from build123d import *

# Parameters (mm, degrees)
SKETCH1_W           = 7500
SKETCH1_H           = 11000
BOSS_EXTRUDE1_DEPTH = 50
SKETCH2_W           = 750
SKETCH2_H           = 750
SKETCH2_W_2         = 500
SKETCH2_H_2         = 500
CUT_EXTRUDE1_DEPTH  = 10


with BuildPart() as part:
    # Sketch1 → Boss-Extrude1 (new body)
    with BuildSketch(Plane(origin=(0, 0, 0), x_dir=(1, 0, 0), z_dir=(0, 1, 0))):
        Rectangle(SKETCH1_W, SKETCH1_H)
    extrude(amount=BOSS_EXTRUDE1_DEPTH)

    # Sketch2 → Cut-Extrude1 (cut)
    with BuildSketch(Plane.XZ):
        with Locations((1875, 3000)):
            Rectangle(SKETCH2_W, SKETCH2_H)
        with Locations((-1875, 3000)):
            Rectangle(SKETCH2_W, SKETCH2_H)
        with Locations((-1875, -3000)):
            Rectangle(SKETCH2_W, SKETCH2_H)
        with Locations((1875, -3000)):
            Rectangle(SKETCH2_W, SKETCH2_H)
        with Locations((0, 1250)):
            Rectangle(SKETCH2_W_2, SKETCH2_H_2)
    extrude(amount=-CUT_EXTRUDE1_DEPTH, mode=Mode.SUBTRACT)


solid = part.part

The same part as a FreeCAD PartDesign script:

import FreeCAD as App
import Part
import Sketcher

V = App.Vector

doc = App.newDocument("Part")
body = doc.addObject("PartDesign::Body", "Body")

sketch1 = body.newObject("Sketcher::SketchObject", "Sketch")
sketch1.AttachmentSupport = (doc.getObject("XZ_Plane"), [""])
sketch1.MapMode = "FlatFace"
sketch1.addGeometry(Part.LineSegment(V(-3750, -5500, 0), V(-3750, 5500, 0)), False)
sketch1.addGeometry(Part.LineSegment(V(-3750, 5500, 0), V(3750, 5500, 0)), False)
sketch1.addGeometry(Part.LineSegment(V(3750, 5500, 0), V(3750, -5500, 0)), False)
sketch1.addGeometry(Part.LineSegment(V(3750, -5500, 0), V(-3750, -5500, 0)), False)
sketch1.addConstraint(Sketcher.Constraint("Coincident", 0, 2, 1, 1))
sketch1.addConstraint(Sketcher.Constraint("Coincident", 1, 2, 2, 1))
sketch1.addConstraint(Sketcher.Constraint("Coincident", 2, 2, 3, 1))
sketch1.addConstraint(Sketcher.Constraint("Coincident", 3, 2, 0, 1))
sketch1.addConstraint(Sketcher.Constraint("Vertical", 0))
sketch1.addConstraint(Sketcher.Constraint("Horizontal", 1))
sketch1.addConstraint(Sketcher.Constraint("Vertical", 2))
sketch1.addConstraint(Sketcher.Constraint("Horizontal", 3))
sketch1.addConstraint(Sketcher.Constraint("Symmetric", 0, 2, 2, 2, -1, 1))
sketch1.addConstraint(Sketcher.Constraint("DistanceX", 1, 1, 1, 2, 7500.0))
sketch1.addConstraint(Sketcher.Constraint("DistanceY", 0, 1, 0, 2, 11000.0))
pad1 = body.newObject("PartDesign::Pad", "Pad")
pad1.Profile = sketch1
pad1.Length = 50
pad1.Reversed = True

sketch2 = body.newObject("Sketcher::SketchObject", "Sketch001")
sketch2.AttachmentSupport = (doc.getObject("XZ_Plane"), [""])
sketch2.MapMode = "FlatFace"
sketch2.addGeometry(Part.LineSegment(V(1500, 3375, 0), V(1500, 2625, 0)), False)
sketch2.addGeometry(Part.LineSegment(V(1500, 2625, 0), V(2250, 2625, 0)), False)
sketch2.addGeometry(Part.LineSegment(V(2250, 2625, 0), V(2250, 3375, 0)), False)
sketch2.addGeometry(Part.LineSegment(V(2250, 3375, 0), V(1500, 3375, 0)), False)
sketch2.addGeometry(Part.LineSegment(V(-2250, 3375, 0), V(-2250, 2625, 0)), False)
sketch2.addGeometry(Part.LineSegment(V(-2250, 2625, 0), V(-1500, 2625, 0)), False)
sketch2.addGeometry(Part.LineSegment(V(-1500, 2625, 0), V(-1500, 3375, 0)), False)
sketch2.addGeometry(Part.LineSegment(V(-1500, 3375, 0), V(-2250, 3375, 0)), False)
sketch2.addGeometry(Part.LineSegment(V(-2250, -2625, 0), V(-2250, -3375, 0)), False)
sketch2.addGeometry(Part.LineSegment(V(-2250, -3375, 0), V(-1500, -3375, 0)), False)
sketch2.addGeometry(Part.LineSegment(V(-1500, -3375, 0), V(-1500, -2625, 0)), False)
sketch2.addGeometry(Part.LineSegment(V(-1500, -2625, 0), V(-2250, -2625, 0)), False)
sketch2.addGeometry(Part.LineSegment(V(1500, -2625, 0), V(1500, -3375, 0)), False)
sketch2.addGeometry(Part.LineSegment(V(1500, -3375, 0), V(2250, -3375, 0)), False)
sketch2.addGeometry(Part.LineSegment(V(2250, -3375, 0), V(2250, -2625, 0)), False)
sketch2.addGeometry(Part.LineSegment(V(2250, -2625, 0), V(1500, -2625, 0)), False)
sketch2.addGeometry(Part.LineSegment(V(-250, 1500, 0), V(-250, 1000, 0)), False)
sketch2.addGeometry(Part.LineSegment(V(-250, 1000, 0), V(250, 1000, 0)), False)
sketch2.addGeometry(Part.LineSegment(V(250, 1000, 0), V(250, 1500, 0)), False)
sketch2.addGeometry(Part.LineSegment(V(250, 1500, 0), V(-250, 1500, 0)), False)
sketch2.addConstraint(Sketcher.Constraint("Coincident", 0, 2, 1, 1))
sketch2.addConstraint(Sketcher.Constraint("Coincident", 1, 2, 2, 1))
sketch2.addConstraint(Sketcher.Constraint("Coincident", 2, 2, 3, 1))
sketch2.addConstraint(Sketcher.Constraint("Coincident", 3, 2, 0, 1))
sketch2.addConstraint(Sketcher.Constraint("Coincident", 4, 2, 5, 1))
sketch2.addConstraint(Sketcher.Constraint("Coincident", 5, 2, 6, 1))
sketch2.addConstraint(Sketcher.Constraint("Coincident", 6, 2, 7, 1))
sketch2.addConstraint(Sketcher.Constraint("Coincident", 7, 2, 4, 1))
sketch2.addConstraint(Sketcher.Constraint("Coincident", 8, 2, 9, 1))
sketch2.addConstraint(Sketcher.Constraint("Coincident", 9, 2, 10, 1))
sketch2.addConstraint(Sketcher.Constraint("Coincident", 10, 2, 11, 1))
sketch2.addConstraint(Sketcher.Constraint("Coincident", 11, 2, 8, 1))
sketch2.addConstraint(Sketcher.Constraint("Coincident", 12, 2, 13, 1))
sketch2.addConstraint(Sketcher.Constraint("Coincident", 13, 2, 14, 1))
sketch2.addConstraint(Sketcher.Constraint("Coincident", 14, 2, 15, 1))
sketch2.addConstraint(Sketcher.Constraint("Coincident", 15, 2, 12, 1))
sketch2.addConstraint(Sketcher.Constraint("Coincident", 16, 2, 17, 1))
sketch2.addConstraint(Sketcher.Constraint("Coincident", 17, 2, 18, 1))
sketch2.addConstraint(Sketcher.Constraint("Coincident", 18, 2, 19, 1))
sketch2.addConstraint(Sketcher.Constraint("Coincident", 19, 2, 16, 1))
sketch2.addConstraint(Sketcher.Constraint("Vertical", 0))
sketch2.addConstraint(Sketcher.Constraint("Horizontal", 1))
sketch2.addConstraint(Sketcher.Constraint("Vertical", 2))
sketch2.addConstraint(Sketcher.Constraint("Horizontal", 3))
sketch2.addConstraint(Sketcher.Constraint("Vertical", 4))
sketch2.addConstraint(Sketcher.Constraint("Horizontal", 5))
sketch2.addConstraint(Sketcher.Constraint("Vertical", 6))
sketch2.addConstraint(Sketcher.Constraint("Horizontal", 7))
sketch2.addConstraint(Sketcher.Constraint("Vertical", 8))
sketch2.addConstraint(Sketcher.Constraint("Horizontal", 9))
sketch2.addConstraint(Sketcher.Constraint("Vertical", 10))
sketch2.addConstraint(Sketcher.Constraint("Horizontal", 11))
sketch2.addConstraint(Sketcher.Constraint("Vertical", 12))
sketch2.addConstraint(Sketcher.Constraint("Horizontal", 13))
sketch2.addConstraint(Sketcher.Constraint("Vertical", 14))
sketch2.addConstraint(Sketcher.Constraint("Horizontal", 15))
sketch2.addConstraint(Sketcher.Constraint("Vertical", 16))
sketch2.addConstraint(Sketcher.Constraint("Horizontal", 17))
sketch2.addConstraint(Sketcher.Constraint("Vertical", 18))
sketch2.addConstraint(Sketcher.Constraint("Horizontal", 19))
sketch2.addConstraint(Sketcher.Constraint("Symmetric", 2, 2, 8, 2, -1, 1))
sketch2.addConstraint(Sketcher.Constraint("Symmetric", 0, 2, 10, 2, -1, 1))
sketch2.addConstraint(Sketcher.Constraint("Symmetric", 6, 2, 12, 2, -1, 1))
sketch2.addConstraint(Sketcher.Constraint("Symmetric", 4, 2, 14, 2, -1, 1))
sketch2.addConstraint(Sketcher.Constraint("Symmetric", 1, 2, 4, 2, -2))
sketch2.addConstraint(Sketcher.Constraint("Symmetric", 3, 2, 6, 2, -2))
sketch2.addConstraint(Sketcher.Constraint("Equal", 15, 0))
sketch2.addConstraint(Sketcher.Constraint("Equal", 19, 16))
sketch2.addConstraint(Sketcher.Constraint("DistanceX", 1, 1, 1, 2, 750.0))
sketch2.addConstraint(Sketcher.Constraint("DistanceX", 17, 1, 17, 2, 500.0))
sketch2.addConstraint(Sketcher.Constraint("DistanceX", -1, 1, 0, 2, 1500.0))
sketch2.addConstraint(Sketcher.Constraint("DistanceY", -1, 1, 0, 2, 2625.0))
sketch2.addConstraint(Sketcher.Constraint("DistanceX", 16, 2, -1, 1, 250.0))
sketch2.addConstraint(Sketcher.Constraint("DistanceY", -1, 1, 16, 2, 1000.0))
pocket1 = body.newObject("PartDesign::Pocket", "Pocket")
pocket1.Profile = sketch2
pocket1.Length = 10

doc.recompute()
